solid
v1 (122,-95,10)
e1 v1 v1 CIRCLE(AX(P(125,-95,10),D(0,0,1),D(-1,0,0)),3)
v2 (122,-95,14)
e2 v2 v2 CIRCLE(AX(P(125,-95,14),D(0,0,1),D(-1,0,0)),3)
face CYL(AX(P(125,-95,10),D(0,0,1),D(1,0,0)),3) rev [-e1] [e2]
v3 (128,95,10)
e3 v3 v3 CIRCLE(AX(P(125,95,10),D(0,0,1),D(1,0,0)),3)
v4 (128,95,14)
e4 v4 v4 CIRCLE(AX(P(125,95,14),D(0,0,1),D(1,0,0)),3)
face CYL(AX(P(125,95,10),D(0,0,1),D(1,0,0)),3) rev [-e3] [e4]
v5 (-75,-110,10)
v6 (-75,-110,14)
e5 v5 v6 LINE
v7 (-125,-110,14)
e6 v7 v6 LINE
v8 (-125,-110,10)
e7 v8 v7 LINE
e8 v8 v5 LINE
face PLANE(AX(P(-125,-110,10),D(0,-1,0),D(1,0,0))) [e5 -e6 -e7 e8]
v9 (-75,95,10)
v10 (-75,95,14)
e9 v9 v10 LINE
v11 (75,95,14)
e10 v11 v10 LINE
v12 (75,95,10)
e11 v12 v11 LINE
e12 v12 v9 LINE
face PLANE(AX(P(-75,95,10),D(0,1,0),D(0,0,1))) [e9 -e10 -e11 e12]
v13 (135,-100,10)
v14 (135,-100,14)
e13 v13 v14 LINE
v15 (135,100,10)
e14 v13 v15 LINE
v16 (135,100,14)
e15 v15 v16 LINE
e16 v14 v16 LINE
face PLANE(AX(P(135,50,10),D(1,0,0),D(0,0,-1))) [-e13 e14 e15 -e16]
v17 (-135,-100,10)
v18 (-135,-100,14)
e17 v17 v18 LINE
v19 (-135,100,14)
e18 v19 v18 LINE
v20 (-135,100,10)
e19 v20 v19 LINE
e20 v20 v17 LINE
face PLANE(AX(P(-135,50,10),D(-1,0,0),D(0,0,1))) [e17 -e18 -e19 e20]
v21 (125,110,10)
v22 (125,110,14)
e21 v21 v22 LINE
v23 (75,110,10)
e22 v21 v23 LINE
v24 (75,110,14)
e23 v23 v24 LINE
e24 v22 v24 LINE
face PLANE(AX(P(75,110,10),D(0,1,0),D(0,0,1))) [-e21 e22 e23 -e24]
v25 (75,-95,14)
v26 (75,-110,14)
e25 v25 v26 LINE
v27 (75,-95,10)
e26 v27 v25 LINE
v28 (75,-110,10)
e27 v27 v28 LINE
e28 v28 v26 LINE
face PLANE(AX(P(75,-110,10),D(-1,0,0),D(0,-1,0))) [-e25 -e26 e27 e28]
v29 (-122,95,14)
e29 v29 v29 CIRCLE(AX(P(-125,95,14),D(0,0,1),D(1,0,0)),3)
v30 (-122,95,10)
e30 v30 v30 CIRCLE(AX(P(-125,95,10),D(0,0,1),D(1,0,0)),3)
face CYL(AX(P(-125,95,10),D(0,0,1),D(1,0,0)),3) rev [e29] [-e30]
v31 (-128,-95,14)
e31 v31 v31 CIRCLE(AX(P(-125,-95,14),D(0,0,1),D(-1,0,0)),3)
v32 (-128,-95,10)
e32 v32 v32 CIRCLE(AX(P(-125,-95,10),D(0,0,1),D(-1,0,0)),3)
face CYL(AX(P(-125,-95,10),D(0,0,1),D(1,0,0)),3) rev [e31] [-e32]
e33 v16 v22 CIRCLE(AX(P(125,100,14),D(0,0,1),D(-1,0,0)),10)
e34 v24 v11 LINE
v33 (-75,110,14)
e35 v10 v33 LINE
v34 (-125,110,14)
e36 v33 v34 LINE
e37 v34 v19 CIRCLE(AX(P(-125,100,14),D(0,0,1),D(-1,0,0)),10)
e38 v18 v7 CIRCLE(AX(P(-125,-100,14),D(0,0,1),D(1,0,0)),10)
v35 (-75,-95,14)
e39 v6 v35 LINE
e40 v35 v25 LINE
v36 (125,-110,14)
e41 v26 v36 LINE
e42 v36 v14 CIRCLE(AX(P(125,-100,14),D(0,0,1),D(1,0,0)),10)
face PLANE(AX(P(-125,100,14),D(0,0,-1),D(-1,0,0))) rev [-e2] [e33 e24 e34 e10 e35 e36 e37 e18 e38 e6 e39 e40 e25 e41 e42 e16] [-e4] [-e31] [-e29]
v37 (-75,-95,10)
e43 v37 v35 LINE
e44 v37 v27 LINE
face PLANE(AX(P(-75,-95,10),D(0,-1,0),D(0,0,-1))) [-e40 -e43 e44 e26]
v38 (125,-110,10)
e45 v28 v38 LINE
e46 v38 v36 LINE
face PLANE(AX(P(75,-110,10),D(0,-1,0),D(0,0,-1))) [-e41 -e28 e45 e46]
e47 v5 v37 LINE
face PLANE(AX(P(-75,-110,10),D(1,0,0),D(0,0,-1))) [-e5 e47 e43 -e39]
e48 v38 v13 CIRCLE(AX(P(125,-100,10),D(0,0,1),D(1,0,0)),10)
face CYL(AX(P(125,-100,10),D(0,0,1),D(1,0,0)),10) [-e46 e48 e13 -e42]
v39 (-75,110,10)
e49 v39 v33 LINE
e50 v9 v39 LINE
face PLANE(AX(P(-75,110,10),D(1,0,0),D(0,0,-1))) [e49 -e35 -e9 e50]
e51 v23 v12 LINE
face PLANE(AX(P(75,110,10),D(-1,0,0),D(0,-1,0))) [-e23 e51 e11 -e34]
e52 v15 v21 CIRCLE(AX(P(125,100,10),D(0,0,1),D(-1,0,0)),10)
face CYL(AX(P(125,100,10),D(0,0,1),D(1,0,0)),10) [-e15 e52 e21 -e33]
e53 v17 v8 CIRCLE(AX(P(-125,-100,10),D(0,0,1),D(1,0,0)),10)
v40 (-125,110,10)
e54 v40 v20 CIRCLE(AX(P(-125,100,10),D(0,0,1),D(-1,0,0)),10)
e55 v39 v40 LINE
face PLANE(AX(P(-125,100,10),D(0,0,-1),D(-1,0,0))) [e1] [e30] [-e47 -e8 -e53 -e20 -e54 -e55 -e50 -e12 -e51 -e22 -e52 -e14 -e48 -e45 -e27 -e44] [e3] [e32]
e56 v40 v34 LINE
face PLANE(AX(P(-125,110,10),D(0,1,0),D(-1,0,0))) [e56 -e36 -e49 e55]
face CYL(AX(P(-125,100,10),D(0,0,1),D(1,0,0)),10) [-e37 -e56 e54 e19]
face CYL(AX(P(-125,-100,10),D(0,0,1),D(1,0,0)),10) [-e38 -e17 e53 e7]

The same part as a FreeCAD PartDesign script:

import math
import FreeCAD as App
import Part
import Sketcher

V = App.Vector


def add_polygon(sketch, points):
    """Adds a closed chain of lines whose ends are joined by coincident constraints."""
    first, n = sketch.GeometryCount, len(points)
    for a, b in zip(points, points[1:] + points[:1]):
        sketch.addGeometry(Part.LineSegment(App.Vector(*a, 0), App.Vector(*b, 0)), False)
    for i in range(n):
        sketch.addConstraint(Sketcher.Constraint("Coincident", first + i, 2, first + (i + 1) % n, 1))

doc = App.newDocument("Part")
body = doc.addObject("PartDesign::Body", "Body")

# Sketch on XY plane
sketch1 = body.newObject("Sketcher::SketchObject", "Sketch")
sketch1.AttachmentSupport = (doc.getObject("XY_Plane"), [""])
sketch1.MapMode = "FlatFace"
add_polygon(sketch1, [(-135, -50), (135, -50), (135, 50), (-135, 50)])  # lines 0-3
sketch1.addGeometry(Part.Circle(V(-85, -43, 0), V(0, 0, 1), 3), False)  # 4
sketch1.addGeometry(Part.Circle(V(85, -43, 0), V(0, 0, 1), 3), False)  # 5
add_polygon(sketch1, [(-94, -40), (-127, -40), (-127, 40), (-94, 40)])  # lines 6-9
add_polygon(sketch1, [(-35, -30), (-61, -30), (-61, 30), (-35, 30), (-35, 20), (-4, 20), (-4, -20), (-35, -20)])  # lines 10-17
sketch1.addGeometry(Part.Circle(V(-80, 43, 0), V(0, 0, 1), 3), False)  # 18
add_polygon(sketch1, [(4, 20), (35, 20), (35, 30), (61, 30), (61, -30), (35, -30), (35, -20), (4, -20)])  # lines 19-26
add_polygon(sketch1, [(127, -35), (94, -35), (94, 45), (127, 45)])  # lines 27-30
sketch1.addGeometry(Part.Circle(V(80, 43, 0), V(0, 0, 1), 3), False)  # 31
sketch1.addConstraint(Sketcher.Constraint("Horizontal", 0))
sketch1.addConstraint(Sketcher.Constraint("Vertical", 1))
sketch1.addConstraint(Sketcher.Constraint("Horizontal", 2))
sketch1.addConstraint(Sketcher.Constraint("Vertical", 3))
sketch1.addConstraint(Sketcher.Constraint("Horizontal", 6))
sketch1.addConstraint(Sketcher.Constraint("Vertical", 7))
sketch1.addConstraint(Sketcher.Constraint("Horizontal", 8))
sketch1.addConstraint(Sketcher.Constraint("Vertical", 9))
sketch1.addConstraint(Sketcher.Constraint("Horizontal", 10))
sketch1.addConstraint(Sketcher.Constraint("Vertical", 11))
sketch1.addConstraint(Sketcher.Constraint("Horizontal", 12))
sketch1.addConstraint(Sketcher.Constraint("Vertical", 13))
sketch1.addConstraint(Sketcher.Constraint("Horizontal", 14))
sketch1.addConstraint(Sketcher.Constraint("Vertical", 15))
sketch1.addConstraint(Sketcher.Constraint("Horizontal", 16))
sketch1.addConstraint(Sketcher.Constraint("Vertical", 17))
sketch1.addConstraint(Sketcher.Constraint("Horizontal", 19))
sketch1.addConstraint(Sketcher.Constraint("Vertical", 20))
sketch1.addConstraint(Sketcher.Constraint("Horizontal", 21))
sketch1.addConstraint(Sketcher.Constraint("Vertical", 22))
sketch1.addConstraint(Sketcher.Constraint("Horizontal", 23))
sketch1.addConstraint(Sketcher.Constraint("Vertical", 24))
sketch1.addConstraint(Sketcher.Constraint("Horizontal", 25))
sketch1.addConstraint(Sketcher.Constraint("Vertical", 26))
sketch1.addConstraint(Sketcher.Constraint("Horizontal", 27))
sketch1.addConstraint(Sketcher.Constraint("Vertical", 28))
sketch1.addConstraint(Sketcher.Constraint("Horizontal", 29))
sketch1.addConstraint(Sketcher.Constraint("Vertical", 30))
sketch1.addConstraint(Sketcher.Constraint("Equal", 4, 5))
sketch1.addConstraint(Sketcher.Constraint("Equal", 5, 18))
sketch1.addConstraint(Sketcher.Constraint("Equal", 18, 31))
sketch1.addConstraint(Sketcher.Constraint("Symmetric", 0, 2, 2, 2, -1, 1))
sketch1.addConstraint(Sketcher.Constraint("Symmetric", 16, 2, 19, 2, -1, 1))
sketch1.addConstraint(Sketcher.Constraint("Symmetric", 10, 2, 21, 2, -1, 1))
sketch1.addConstraint(Sketcher.Constraint("Symmetric", 12, 2, 23, 2, -1, 1))
sketch1.addConstraint(Sketcher.Constraint("Symmetric", 14, 2, 25, 2, -1, 1))
sketch1.addConstraint(Sketcher.Constraint("Symmetric", 4, 3, 5, 3, -2))
sketch1.addConstraint(Sketcher.Constraint("Symmetric", 18, 3, 31, 3, -2))
sketch1.addConstraint(Sketcher.Constraint("Symmetric", 13, 2, 19, 2, -2))
sketch1.addConstraint(Sketcher.Constraint("Horizontal", 12, 2, 20, 2))
sketch1.addConstraint(Sketcher.Constraint("Equal", 8, 27))
sketch1.addConstraint(Sketcher.Constraint("Equal", 9, 28))
sketch1.addConstraint(Sketcher.Constraint("Diameter", 4, 6.0))
sketch1.addConstraint(Sketcher.Constraint("DistanceX", 0, 1, 0, 2, 270.0))
sketch1.addConstraint(Sketcher.Constraint("DistanceX", 6, 2, 6, 1, 33.0))
sketch1.addConstraint(Sketcher.Constraint("DistanceX", 10, 2, 10, 1, 26.0))
sketch1.addConstraint(Sketcher.Constraint("DistanceX", 14, 1, 14, 2, 31.0))
sketch1.addConstraint(Sketcher.Constraint("DistanceY", 1, 1, 1, 2, 100.0))
sketch1.addConstraint(Sketcher.Constraint("DistanceY", 7, 1, 7, 2, 80.0))
sketch1.addConstraint(Sketcher.Constraint("DistanceY", 11, 1, 11, 2, 60.0))
sketch1.addConstraint(Sketcher.Constraint("DistanceY", 13, 2, 13, 1, 10.0))
sketch1.addConstraint(Sketcher.Constraint("DistanceX", 4, 3, -1, 1, 85.0))
sketch1.addConstraint(Sketcher.Constraint("DistanceY", 4, 3, -1, 1, 43.0))
sketch1.addConstraint(Sketcher.Constraint("DistanceX", 18, 3, -1, 1, 80.0))
sketch1.addConstraint(Sketcher.Constraint("DistanceY", -1, 1, 18, 3, 43.0))
sketch1.addConstraint(Sketcher.Constraint("DistanceX", 6, 2, -1, 1, 127.0))
sketch1.addConstraint(Sketcher.Constraint("DistanceY", 6, 2, -1, 1, 40.0))
sketch1.addConstraint(Sketcher.Constraint("DistanceX", 10, 2, -1, 1, 61.0))
sketch1.addConstraint(Sketcher.Constraint("DistanceX", -1, 1, 27, 2, 94.0))
sketch1.addConstraint(Sketcher.Constraint("DistanceY", 27, 2, -1, 1, 35.0))
pad1 = body.newObject("PartDesign::Pad", "Pad")
pad1.Profile = sketch1
pad1.Length = 14

# Sketch on XY plane
sketch2 = body.newObject("Sketcher::SketchObject", "Sketch001")
sketch2.AttachmentSupport = (doc.getObject("XY_Plane"), [""])
sketch2.MapMode = "FlatFace"
sketch2.addGeometry(Part.Circle(V(131.5, 5, 0), V(0, 0, 1), 2), False)
sketch2.addConstraint(Sketcher.Constraint("Diameter", 0, 4.0))
sketch2.addConstraint(Sketcher.Constraint("DistanceY", -1, 1, 0, 3, 5.0))
sketch2.addConstraint(Sketcher.Constraint("DistanceX", -1, 1, 0, 3, 131.5))
pocket1 = body.newObject("PartDesign::Pocket", "Pocket")
pocket1.Profile = sketch2
pocket1.Length = 10
pocket1.Reversed = True

# Sketch on XY plane
sketch3 = body.newObject("Sketcher::SketchObject", "Sketch002")
sketch3.AttachmentSupport = (doc.getObject("XY_Plane"), [""])
sketch3.MapMode = "FlatFace"
sketch3.addGeometry(Part.Circle(V(69, 5, 0), V(0, 0, 1), 2), False)
sketch3.addConstraint(Sketcher.Constraint("Diameter", 0, 4.0))
sketch3.addConstraint(Sketcher.Constraint("DistanceX", -1, 1, 0, 3, 69.0))
sketch3.addConstraint(Sketcher.Constraint("DistanceY", -1, 1, 0, 3, 5.0))
pocket2 = body.newObject("PartDesign::Pocket", "Pocket001")
pocket2.Profile = sketch3
pocket2.Length = 10
pocket2.Reversed = True
doc.recompute()

mirrored = body.newObject("PartDesign::Mirrored", "Mirrored")
mirrored.Originals = [pocket1, pocket2]
mirrored.MirrorPlane = (doc.getObject("YZ_Plane"), [""])
body.Tip = mirrored
body2 = doc.addObject("PartDesign::Body", "Body001")

# Sketch on XY plane
sketch4 = body2.newObject("Sketcher::SketchObject", "Sketch003")
sketch4.AttachmentSupport = (doc.getObject("XY_Plane001"), [""])
sketch4.MapMode = "FlatFace"
sketch4.AttachmentOffset = App.Placement(V(0, 0, 14), App.Rotation())
sketch4.addGeometry(Part.LineSegment(V(125, 110, 0), V(75, 110, 0)), False)
sketch4.addGeometry(Part.LineSegment(V(75, 110, 0), V(75, 95, 0)), False)
sketch4.addGeometry(Part.LineSegment(V(75, 95, 0), V(-75, 95, 0)), False)
sketch4.addGeometry(Part.LineSegment(V(-75, 95, 0), V(-75, 110, 0)), False)
sketch4.addGeometry(Part.LineSegment(V(-75, 110, 0), V(-125, 110, 0)), False)
sketch4.addGeometry(Part.ArcOfCircle(Part.Circle(V(-125, 100, 0), V(0, 0, 1), 10), math.radians(90), math.radians(180)), False)
sketch4.addGeometry(Part.LineSegment(V(-135, 100, 0), V(-135, 50, 0)), False)
sketch4.addGeometry(Part.LineSegment(V(-135, 50, 0), V(135, 50, 0)), False)
sketch4.addGeometry(Part.LineSegment(V(135, 50, 0), V(135, 100, 0)), False)
sketch4.addGeometry(Part.ArcOfCircle(Part.Circle(V(125, 100, 0), V(0, 0, 1), 10), math.radians(0), math.radians(90)), False)
sketch4.addGeometry(Part.Circle(V(125, 95, 0), V(0, 0, 1), 3), False)
sketch4.addGeometry(Part.Circle(V(-125, 95, 0), V(0, 0, 1), 3), False)
sketch4.addConstraint(Sketcher.Constraint("Coincident", 0, 2, 1, 1))
sketch4.addConstraint(Sketcher.Constraint("Coincident", 1, 2, 2, 1))
sketch4.addConstraint(Sketcher.Constraint("Coincident", 2, 2, 3, 1))
sketch4.addConstraint(Sketcher.Constraint("Coincident", 3, 2, 4, 1))
sketch4.addConstraint(Sketcher.Constraint("Tangent", 4, 2, 5, 1))
sketch4.addConstraint(Sketcher.Constraint("Tangent", 5, 2, 6, 1))
sketch4.addConstraint(Sketcher.Constraint("Coincident", 6, 2, 7, 1))
sketch4.addConstraint(Sketcher.Constraint("Coincident", 7, 2, 8, 1))
sketch4.addConstraint(Sketcher.Constraint("Tangent", 8, 2, 9, 1))
sketch4.addConstraint(Sketcher.Constraint("Tangent", 9, 2, 0, 1))
sketch4.addConstraint(Sketcher.Constraint("Horizontal", 0))
sketch4.addConstraint(Sketcher.Constraint("Vertical", 1))
sketch4.addConstraint(Sketcher.Constraint("Horizontal", 2))
sketch4.addConstraint(Sketcher.Constraint("Vertical", 3))
sketch4.addConstraint(Sketcher.Constraint("Horizontal", 4))
sketch4.addConstraint(Sketcher.Constraint("Vertical", 6))
sketch4.addConstraint(Sketcher.Constraint("Horizontal", 7))
sketch4.addConstraint(Sketcher.Constraint("Vertical", 8))
sketch4.addConstraint(Sketcher.Constraint("Equal", 5, 9))
sketch4.addConstraint(Sketcher.Constraint("Equal", 10, 11))
sketch4.addConstraint(Sketcher.Constraint("Symmetric", 5, 3, 9, 3, -2))
sketch4.addConstraint(Sketcher.Constraint("Symmetric", 10, 3, 11, 3, -2))
sketch4.addConstraint(Sketcher.Constraint("Horizontal", 11, 3, 1, 2))
sketch4.addConstraint(Sketcher.Constraint("Vertical", 9, 3, 10, 3))
sketch4.addConstraint(Sketcher.Constraint("Equal", 0, 4))
sketch4.addConstraint(Sketcher.Constraint("Equal", 4, 6))
sketch4.addConstraint(Sketcher.Constraint("Diameter", 10, 6.0))
sketch4.addConstraint(Sketcher.Constraint("Radius", 5, 10.0))
sketch4.addConstraint(Sketcher.Constraint("DistanceX", 0, 2, 0, 1, 50.0))
sketch4.addConstraint(Sketcher.Constraint("DistanceX", 2, 2, 2, 1, 150.0))
sketch4.addConstraint(Sketcher.Constraint("DistanceY", 1, 2, 1, 1, 15.0))
sketch4.addConstraint(Sketcher.Constraint("DistanceY", -1, 1, 5, 3, 100.0))
pad2 = body2.newObject("PartDesign::Pad", "Pad001")
pad2.Profile = sketch4
pad2.Length = 4
pad2.Reversed = True
doc.recompute()

boolean = body2.newObject("PartDesign::Boolean", "Boolean")
boolean.Type = "Fuse"
boolean.addObjects([body])
body3 = doc.addObject("PartDesign::Body", "Body002")

# Sketch on XY plane
sketch5 = body3.newObject("Sketcher::SketchObject", "Sketch004")
sketch5.AttachmentSupport = (doc.getObject("XY_Plane002"), [""])
sketch5.MapMode = "FlatFace"
sketch5.AttachmentOffset = App.Placement(V(0, 0, 14), App.Rotation())
sketch5.addGeometry(Part.LineSegment(V(75, -95, 0), V(75, -110, 0)), False)
sketch5.addGeometry(Part.LineSegment(V(75, -110, 0), V(125, -110, 0)), False)
sketch5.addGeometry(Part.ArcOfCircle(Part.Circle(V(125, -100, 0), V(0, 0, 1), 10), math.radians(-90), math.radians(0)), False)
sketch5.addGeometry(Part.LineSegment(V(135, -100, 0), V(135, -50, 0)), False)
sketch5.addGeometry(Part.LineSegment(V(135, -50, 0), V(-135, -50, 0)), False)
sketch5.addGeometry(Part.LineSegment(V(-135, -50, 0), V(-135, -100, 0)), False)
sketch5.addGeometry(Part.ArcOfCircle(Part.Circle(V(-125, -100, 0), V(0, 0, 1), 10), math.radians(180), math.radians(270)), False)
sketch5.addGeometry(Part.LineSegment(V(-125, -110, 0), V(-75, -110, 0)), False)
sketch5.addGeometry(Part.LineSegment(V(-75, -110, 0), V(-75, -95, 0)), False)
sketch5.addGeometry(Part.LineSegment(V(-75, -95, 0), V(75, -95, 0)), False)
sketch5.addGeometry(Part.Circle(V(125, -95, 0), V(0, 0, 1), 3), False)
sketch5.addGeometry(Part.Circle(V(-125, -95, 0), V(0, 0, 1), 3), False)
sketch5.addConstraint(Sketcher.Constraint("Coincident", 0, 2, 1, 1))
sketch5.addConstraint(Sketcher.Constraint("Tangent", 1, 2, 2, 1))
sketch5.addConstraint(Sketcher.Constraint("Tangent", 2, 2, 3, 1))
sketch5.addConstraint(Sketcher.Constraint("Coincident", 3, 2, 4, 1))
sketch5.addConstraint(Sketcher.Constraint("Coincident", 4, 2, 5, 1))
sketch5.addConstraint(Sketcher.Constraint("Tangent", 5, 2, 6, 1))
sketch5.addConstraint(Sketcher.Constraint("Tangent", 6, 2, 7, 1))
sketch5.addConstraint(Sketcher.Constraint("Coincident", 7, 2, 8, 1))
sketch5.addConstraint(Sketcher.Constraint("Coincident", 8, 2, 9, 1))
sketch5.addConstraint(Sketcher.Constraint("Coincident", 9, 2, 0, 1))
sketch5.addConstraint(Sketcher.Constraint("Vertical", 0))
sketch5.addConstraint(Sketcher.Constraint("Horizontal", 1))
sketch5.addConstraint(Sketcher.Constraint("Vertical", 3))
sketch5.addConstraint(Sketcher.Constraint("Horizontal", 4))
sketch5.addConstraint(Sketcher.Constraint("Vertical", 5))
sketch5.addConstraint(Sketcher.Constraint("Horizontal", 7))
sketch5.addConstraint(Sketcher.Constraint("Vertical", 8))
sketch5.addConstraint(Sketcher.Constraint("Horizontal", 9))
sketch5.addConstraint(Sketcher.Constraint("Equal", 2, 6))
sketch5.addConstraint(Sketcher.Constraint("Equal", 10, 11))
sketch5.addConstraint(Sketcher.Constraint("Symmetric", 2, 3, 6, 3, -2))
sketch5.addConstraint(Sketcher.Constraint("Symmetric", 10, 3, 11, 3, -2))
sketch5.addConstraint(Sketcher.Constraint("Horizontal", 11, 3, 8, 2))
sketch5.addConstraint(Sketcher.Constraint("Vertical", 2, 3, 10, 3))
sketch5.addConstraint(Sketcher.Constraint("Equal", 1, 7))
sketch5.addConstraint(Sketcher.Constraint("Equal", 7, 3))
sketch5.addConstraint(Sketcher.Constraint("Diameter", 10, 6.0))
sketch5.addConstraint(Sketcher.Constraint("Radius", 2, 10.0))
sketch5.addConstraint(Sketcher.Constraint("DistanceX", 1, 1, 1, 2, 50.0))
sketch5.addConstraint(Sketcher.Constraint("DistanceX", 4, 2, 4, 1, 270.0))
sketch5.addConstraint(Sketcher.Constraint("DistanceY", 0, 2, 0, 1, 15.0))
sketch5.addConstraint(Sketcher.Constraint("DistanceY", 2, 3, -1, 1, 100.0))
pad3 = body3.newObject("PartDesign::Pad", "Pad002")
pad3.Profile = sketch5
pad3.Length = 4
pad3.Reversed = True
doc.recompute()

boolean2 = body2.newObject("PartDesign::Boolean", "Boolean001")
boolean2.Type = "Fuse"
boolean2.addObjects([body3])

# Sketch on XY plane
sketch6 = body2.newObject("Sketcher::SketchObject", "Sketch005")
sketch6.AttachmentSupport = (doc.getObject("XY_Plane001"), [""])
sketch6.MapMode = "FlatFace"
sketch6.AttachmentOffset = App.Placement(V(0, 0, 14), App.Rotation())
sketch6.addGeometry(Part.Circle(V(0, 70, 0), V(0, 0, 1), 6.8), False)
sketch6.addGeometry(Part.Circle(V(-11.2, 76.5, 0), V(0, 0, 1), 1.5), False)
sketch6.addGeometry(Part.Circle(V(0, 57, 0), V(0, 0, 1), 1.5), False)
sketch6.addGeometry(Part.Circle(V(0, -70, 0), V(0, 0, 1), 6.8), False)
sketch6.addGeometry(Part.Circle(V(0, -57, 0), V(0, 0, 1), 1.5), False)
sketch6.addGeometry(Part.Circle(V(11.2, 76.5, 0), V(0, 0, 1), 1.5), False)
sketch6.addGeometry(Part.Circle(V(-11.2, -76.5, 0), V(0, 0, 1), 1.5), False)
sketch6.addGeometry(Part.Circle(V(11.2, -76.5, 0), V(0, 0, 1), 1.5), False)
sketch6.addConstraint(Sketcher.Constraint("Equal", 1, 2))
sketch6.addConstraint(Sketcher.Constraint("Equal", 0, 3))
sketch6.addConstraint(Sketcher.Constraint("Equal", 2, 4))
sketch6.addConstraint(Sketcher.Constraint("Equal", 4, 5))
sketch6.addConstraint(Sketcher.Constraint("Equal", 5, 6))
sketch6.addConstraint(Sketcher.Constraint("Equal", 6, 7))
sketch6.addConstraint(Sketcher.Constraint("Symmetric", 0, 3, 3, 3, -1, 1))
sketch6.addConstraint(Sketcher.Constraint("Symmetric", 2, 3, 4, 3, -1, 1))
sketch6.addConstraint(Sketcher.Constraint("Symmetric", 5, 3, 6, 3, -1, 1))
sketch6.addConstraint(Sketcher.Constraint("Symmetric", 1, 3, 7, 3, -1, 1))
sketch6.addConstraint(Sketcher.Constraint("Symmetric", 1, 3, 5, 3, -2))
sketch6.addConstraint(Sketcher.Constraint("PointOnObject", 0, 3, -2))
sketch6.addConstraint(Sketcher.Constraint("PointOnObject", 2, 3, -2))
sketch6.addConstraint(Sketcher.Constraint("Diameter", 1, 3.0))
sketch6.addConstraint(Sketcher.Constraint("Diameter", 0, 13.7))
sketch6.addConstraint(Sketcher.Constraint("DistanceY", -1, 1, 0, 3, 70.0))
sketch6.addConstraint(Sketcher.Constraint("DistanceX", 1, 3, 5, 3, 22.5))
sketch6.addConstraint(Sketcher.Constraint("DistanceY", -1, 1, 1, 3, 76.495191))
sketch6.addConstraint(Sketcher.Constraint("DistanceY", -1, 1, 2, 3, 57.009619))
pocket3 = body2.newObject("PartDesign::Pocket", "Pocket002")
pocket3.Profile = sketch6
pocket3.Length = 10

# Sketch on XZ plane
sketch7 = body2.newObject("Sketcher::SketchObject", "Sketch006")
sketch7.AttachmentSupport = (doc.getObject("XZ_Plane001"), [""])
sketch7.MapMode = "FlatFace"
sketch7.AttachmentOffset = App.Placement(V(0, 0, 50), App.Rotation())
add_polygon(sketch7, [(-135, 10), (-135, 0), (135, 0), (135, 10)])  # lines 0-3
sketch7.addConstraint(Sketcher.Constraint("Vertical", 0))
sketch7.addConstraint(Sketcher.Constraint("Horizontal", 1))
sketch7.addConstraint(Sketcher.Constraint("Vertical", 2))
sketch7.addConstraint(Sketcher.Constraint("Horizontal", 3))
sketch7.addConstraint(Sketcher.Constraint("Symmetric", 0, 2, 1, 2, -1, 1))
sketch7.addConstraint(Sketcher.Constraint("DistanceX", 1, 1, 1, 2, 270.0))
sketch7.addConstraint(Sketcher.Constraint("DistanceY", 0, 2, 0, 1, 10.0))
pocket4 = body2.newObject("PartDesign::Pocket", "Pocket003")
pocket4.Profile = sketch7
pocket4.Length = 260

# Sketch on YZ plane
sketch8 = body2.newObject("Sketcher::SketchObject", "Sketch007")
sketch8.AttachmentSupport = (doc.getObject("YZ_Plane001"), [""])
sketch8.MapMode = "FlatFace"
sketch8.AttachmentOffset = App.Placement(V(0, 0, 135), App.Rotation())
add_polygon(sketch8, [(88.5, 14), (-88, 14), (-88, 10), (88.5, 10)])  # lines 0-3
sketch8.addConstraint(Sketcher.Constraint("Horizontal", 0))
sketch8.addConstraint(Sketcher.Constraint("Vertical", 1))
sketch8.addConstraint(Sketcher.Constraint("Horizontal", 2))
sketch8.addConstraint(Sketcher.Constraint("Vertical", 3))
sketch8.addConstraint(Sketcher.Constraint("DistanceY", 1, 2, 1, 1, 4.0))
sketch8.addConstraint(Sketcher.Constraint("DistanceY", -1, 1, 0, 2, 14.0))
sketch8.addConstraint(Sketcher.Constraint("DistanceX", 0, 2, 0, 1, 176.467185))
sketch8.addConstraint(Sketcher.Constraint("DistanceX", -1, 1, 2, 2, 88.478451))
pad4 = body2.newObject("PartDesign::Pad", "Pad003")
pad4.Profile = sketch8
pad4.Length = 265
pad4.Reversed = True

doc.recompute()
